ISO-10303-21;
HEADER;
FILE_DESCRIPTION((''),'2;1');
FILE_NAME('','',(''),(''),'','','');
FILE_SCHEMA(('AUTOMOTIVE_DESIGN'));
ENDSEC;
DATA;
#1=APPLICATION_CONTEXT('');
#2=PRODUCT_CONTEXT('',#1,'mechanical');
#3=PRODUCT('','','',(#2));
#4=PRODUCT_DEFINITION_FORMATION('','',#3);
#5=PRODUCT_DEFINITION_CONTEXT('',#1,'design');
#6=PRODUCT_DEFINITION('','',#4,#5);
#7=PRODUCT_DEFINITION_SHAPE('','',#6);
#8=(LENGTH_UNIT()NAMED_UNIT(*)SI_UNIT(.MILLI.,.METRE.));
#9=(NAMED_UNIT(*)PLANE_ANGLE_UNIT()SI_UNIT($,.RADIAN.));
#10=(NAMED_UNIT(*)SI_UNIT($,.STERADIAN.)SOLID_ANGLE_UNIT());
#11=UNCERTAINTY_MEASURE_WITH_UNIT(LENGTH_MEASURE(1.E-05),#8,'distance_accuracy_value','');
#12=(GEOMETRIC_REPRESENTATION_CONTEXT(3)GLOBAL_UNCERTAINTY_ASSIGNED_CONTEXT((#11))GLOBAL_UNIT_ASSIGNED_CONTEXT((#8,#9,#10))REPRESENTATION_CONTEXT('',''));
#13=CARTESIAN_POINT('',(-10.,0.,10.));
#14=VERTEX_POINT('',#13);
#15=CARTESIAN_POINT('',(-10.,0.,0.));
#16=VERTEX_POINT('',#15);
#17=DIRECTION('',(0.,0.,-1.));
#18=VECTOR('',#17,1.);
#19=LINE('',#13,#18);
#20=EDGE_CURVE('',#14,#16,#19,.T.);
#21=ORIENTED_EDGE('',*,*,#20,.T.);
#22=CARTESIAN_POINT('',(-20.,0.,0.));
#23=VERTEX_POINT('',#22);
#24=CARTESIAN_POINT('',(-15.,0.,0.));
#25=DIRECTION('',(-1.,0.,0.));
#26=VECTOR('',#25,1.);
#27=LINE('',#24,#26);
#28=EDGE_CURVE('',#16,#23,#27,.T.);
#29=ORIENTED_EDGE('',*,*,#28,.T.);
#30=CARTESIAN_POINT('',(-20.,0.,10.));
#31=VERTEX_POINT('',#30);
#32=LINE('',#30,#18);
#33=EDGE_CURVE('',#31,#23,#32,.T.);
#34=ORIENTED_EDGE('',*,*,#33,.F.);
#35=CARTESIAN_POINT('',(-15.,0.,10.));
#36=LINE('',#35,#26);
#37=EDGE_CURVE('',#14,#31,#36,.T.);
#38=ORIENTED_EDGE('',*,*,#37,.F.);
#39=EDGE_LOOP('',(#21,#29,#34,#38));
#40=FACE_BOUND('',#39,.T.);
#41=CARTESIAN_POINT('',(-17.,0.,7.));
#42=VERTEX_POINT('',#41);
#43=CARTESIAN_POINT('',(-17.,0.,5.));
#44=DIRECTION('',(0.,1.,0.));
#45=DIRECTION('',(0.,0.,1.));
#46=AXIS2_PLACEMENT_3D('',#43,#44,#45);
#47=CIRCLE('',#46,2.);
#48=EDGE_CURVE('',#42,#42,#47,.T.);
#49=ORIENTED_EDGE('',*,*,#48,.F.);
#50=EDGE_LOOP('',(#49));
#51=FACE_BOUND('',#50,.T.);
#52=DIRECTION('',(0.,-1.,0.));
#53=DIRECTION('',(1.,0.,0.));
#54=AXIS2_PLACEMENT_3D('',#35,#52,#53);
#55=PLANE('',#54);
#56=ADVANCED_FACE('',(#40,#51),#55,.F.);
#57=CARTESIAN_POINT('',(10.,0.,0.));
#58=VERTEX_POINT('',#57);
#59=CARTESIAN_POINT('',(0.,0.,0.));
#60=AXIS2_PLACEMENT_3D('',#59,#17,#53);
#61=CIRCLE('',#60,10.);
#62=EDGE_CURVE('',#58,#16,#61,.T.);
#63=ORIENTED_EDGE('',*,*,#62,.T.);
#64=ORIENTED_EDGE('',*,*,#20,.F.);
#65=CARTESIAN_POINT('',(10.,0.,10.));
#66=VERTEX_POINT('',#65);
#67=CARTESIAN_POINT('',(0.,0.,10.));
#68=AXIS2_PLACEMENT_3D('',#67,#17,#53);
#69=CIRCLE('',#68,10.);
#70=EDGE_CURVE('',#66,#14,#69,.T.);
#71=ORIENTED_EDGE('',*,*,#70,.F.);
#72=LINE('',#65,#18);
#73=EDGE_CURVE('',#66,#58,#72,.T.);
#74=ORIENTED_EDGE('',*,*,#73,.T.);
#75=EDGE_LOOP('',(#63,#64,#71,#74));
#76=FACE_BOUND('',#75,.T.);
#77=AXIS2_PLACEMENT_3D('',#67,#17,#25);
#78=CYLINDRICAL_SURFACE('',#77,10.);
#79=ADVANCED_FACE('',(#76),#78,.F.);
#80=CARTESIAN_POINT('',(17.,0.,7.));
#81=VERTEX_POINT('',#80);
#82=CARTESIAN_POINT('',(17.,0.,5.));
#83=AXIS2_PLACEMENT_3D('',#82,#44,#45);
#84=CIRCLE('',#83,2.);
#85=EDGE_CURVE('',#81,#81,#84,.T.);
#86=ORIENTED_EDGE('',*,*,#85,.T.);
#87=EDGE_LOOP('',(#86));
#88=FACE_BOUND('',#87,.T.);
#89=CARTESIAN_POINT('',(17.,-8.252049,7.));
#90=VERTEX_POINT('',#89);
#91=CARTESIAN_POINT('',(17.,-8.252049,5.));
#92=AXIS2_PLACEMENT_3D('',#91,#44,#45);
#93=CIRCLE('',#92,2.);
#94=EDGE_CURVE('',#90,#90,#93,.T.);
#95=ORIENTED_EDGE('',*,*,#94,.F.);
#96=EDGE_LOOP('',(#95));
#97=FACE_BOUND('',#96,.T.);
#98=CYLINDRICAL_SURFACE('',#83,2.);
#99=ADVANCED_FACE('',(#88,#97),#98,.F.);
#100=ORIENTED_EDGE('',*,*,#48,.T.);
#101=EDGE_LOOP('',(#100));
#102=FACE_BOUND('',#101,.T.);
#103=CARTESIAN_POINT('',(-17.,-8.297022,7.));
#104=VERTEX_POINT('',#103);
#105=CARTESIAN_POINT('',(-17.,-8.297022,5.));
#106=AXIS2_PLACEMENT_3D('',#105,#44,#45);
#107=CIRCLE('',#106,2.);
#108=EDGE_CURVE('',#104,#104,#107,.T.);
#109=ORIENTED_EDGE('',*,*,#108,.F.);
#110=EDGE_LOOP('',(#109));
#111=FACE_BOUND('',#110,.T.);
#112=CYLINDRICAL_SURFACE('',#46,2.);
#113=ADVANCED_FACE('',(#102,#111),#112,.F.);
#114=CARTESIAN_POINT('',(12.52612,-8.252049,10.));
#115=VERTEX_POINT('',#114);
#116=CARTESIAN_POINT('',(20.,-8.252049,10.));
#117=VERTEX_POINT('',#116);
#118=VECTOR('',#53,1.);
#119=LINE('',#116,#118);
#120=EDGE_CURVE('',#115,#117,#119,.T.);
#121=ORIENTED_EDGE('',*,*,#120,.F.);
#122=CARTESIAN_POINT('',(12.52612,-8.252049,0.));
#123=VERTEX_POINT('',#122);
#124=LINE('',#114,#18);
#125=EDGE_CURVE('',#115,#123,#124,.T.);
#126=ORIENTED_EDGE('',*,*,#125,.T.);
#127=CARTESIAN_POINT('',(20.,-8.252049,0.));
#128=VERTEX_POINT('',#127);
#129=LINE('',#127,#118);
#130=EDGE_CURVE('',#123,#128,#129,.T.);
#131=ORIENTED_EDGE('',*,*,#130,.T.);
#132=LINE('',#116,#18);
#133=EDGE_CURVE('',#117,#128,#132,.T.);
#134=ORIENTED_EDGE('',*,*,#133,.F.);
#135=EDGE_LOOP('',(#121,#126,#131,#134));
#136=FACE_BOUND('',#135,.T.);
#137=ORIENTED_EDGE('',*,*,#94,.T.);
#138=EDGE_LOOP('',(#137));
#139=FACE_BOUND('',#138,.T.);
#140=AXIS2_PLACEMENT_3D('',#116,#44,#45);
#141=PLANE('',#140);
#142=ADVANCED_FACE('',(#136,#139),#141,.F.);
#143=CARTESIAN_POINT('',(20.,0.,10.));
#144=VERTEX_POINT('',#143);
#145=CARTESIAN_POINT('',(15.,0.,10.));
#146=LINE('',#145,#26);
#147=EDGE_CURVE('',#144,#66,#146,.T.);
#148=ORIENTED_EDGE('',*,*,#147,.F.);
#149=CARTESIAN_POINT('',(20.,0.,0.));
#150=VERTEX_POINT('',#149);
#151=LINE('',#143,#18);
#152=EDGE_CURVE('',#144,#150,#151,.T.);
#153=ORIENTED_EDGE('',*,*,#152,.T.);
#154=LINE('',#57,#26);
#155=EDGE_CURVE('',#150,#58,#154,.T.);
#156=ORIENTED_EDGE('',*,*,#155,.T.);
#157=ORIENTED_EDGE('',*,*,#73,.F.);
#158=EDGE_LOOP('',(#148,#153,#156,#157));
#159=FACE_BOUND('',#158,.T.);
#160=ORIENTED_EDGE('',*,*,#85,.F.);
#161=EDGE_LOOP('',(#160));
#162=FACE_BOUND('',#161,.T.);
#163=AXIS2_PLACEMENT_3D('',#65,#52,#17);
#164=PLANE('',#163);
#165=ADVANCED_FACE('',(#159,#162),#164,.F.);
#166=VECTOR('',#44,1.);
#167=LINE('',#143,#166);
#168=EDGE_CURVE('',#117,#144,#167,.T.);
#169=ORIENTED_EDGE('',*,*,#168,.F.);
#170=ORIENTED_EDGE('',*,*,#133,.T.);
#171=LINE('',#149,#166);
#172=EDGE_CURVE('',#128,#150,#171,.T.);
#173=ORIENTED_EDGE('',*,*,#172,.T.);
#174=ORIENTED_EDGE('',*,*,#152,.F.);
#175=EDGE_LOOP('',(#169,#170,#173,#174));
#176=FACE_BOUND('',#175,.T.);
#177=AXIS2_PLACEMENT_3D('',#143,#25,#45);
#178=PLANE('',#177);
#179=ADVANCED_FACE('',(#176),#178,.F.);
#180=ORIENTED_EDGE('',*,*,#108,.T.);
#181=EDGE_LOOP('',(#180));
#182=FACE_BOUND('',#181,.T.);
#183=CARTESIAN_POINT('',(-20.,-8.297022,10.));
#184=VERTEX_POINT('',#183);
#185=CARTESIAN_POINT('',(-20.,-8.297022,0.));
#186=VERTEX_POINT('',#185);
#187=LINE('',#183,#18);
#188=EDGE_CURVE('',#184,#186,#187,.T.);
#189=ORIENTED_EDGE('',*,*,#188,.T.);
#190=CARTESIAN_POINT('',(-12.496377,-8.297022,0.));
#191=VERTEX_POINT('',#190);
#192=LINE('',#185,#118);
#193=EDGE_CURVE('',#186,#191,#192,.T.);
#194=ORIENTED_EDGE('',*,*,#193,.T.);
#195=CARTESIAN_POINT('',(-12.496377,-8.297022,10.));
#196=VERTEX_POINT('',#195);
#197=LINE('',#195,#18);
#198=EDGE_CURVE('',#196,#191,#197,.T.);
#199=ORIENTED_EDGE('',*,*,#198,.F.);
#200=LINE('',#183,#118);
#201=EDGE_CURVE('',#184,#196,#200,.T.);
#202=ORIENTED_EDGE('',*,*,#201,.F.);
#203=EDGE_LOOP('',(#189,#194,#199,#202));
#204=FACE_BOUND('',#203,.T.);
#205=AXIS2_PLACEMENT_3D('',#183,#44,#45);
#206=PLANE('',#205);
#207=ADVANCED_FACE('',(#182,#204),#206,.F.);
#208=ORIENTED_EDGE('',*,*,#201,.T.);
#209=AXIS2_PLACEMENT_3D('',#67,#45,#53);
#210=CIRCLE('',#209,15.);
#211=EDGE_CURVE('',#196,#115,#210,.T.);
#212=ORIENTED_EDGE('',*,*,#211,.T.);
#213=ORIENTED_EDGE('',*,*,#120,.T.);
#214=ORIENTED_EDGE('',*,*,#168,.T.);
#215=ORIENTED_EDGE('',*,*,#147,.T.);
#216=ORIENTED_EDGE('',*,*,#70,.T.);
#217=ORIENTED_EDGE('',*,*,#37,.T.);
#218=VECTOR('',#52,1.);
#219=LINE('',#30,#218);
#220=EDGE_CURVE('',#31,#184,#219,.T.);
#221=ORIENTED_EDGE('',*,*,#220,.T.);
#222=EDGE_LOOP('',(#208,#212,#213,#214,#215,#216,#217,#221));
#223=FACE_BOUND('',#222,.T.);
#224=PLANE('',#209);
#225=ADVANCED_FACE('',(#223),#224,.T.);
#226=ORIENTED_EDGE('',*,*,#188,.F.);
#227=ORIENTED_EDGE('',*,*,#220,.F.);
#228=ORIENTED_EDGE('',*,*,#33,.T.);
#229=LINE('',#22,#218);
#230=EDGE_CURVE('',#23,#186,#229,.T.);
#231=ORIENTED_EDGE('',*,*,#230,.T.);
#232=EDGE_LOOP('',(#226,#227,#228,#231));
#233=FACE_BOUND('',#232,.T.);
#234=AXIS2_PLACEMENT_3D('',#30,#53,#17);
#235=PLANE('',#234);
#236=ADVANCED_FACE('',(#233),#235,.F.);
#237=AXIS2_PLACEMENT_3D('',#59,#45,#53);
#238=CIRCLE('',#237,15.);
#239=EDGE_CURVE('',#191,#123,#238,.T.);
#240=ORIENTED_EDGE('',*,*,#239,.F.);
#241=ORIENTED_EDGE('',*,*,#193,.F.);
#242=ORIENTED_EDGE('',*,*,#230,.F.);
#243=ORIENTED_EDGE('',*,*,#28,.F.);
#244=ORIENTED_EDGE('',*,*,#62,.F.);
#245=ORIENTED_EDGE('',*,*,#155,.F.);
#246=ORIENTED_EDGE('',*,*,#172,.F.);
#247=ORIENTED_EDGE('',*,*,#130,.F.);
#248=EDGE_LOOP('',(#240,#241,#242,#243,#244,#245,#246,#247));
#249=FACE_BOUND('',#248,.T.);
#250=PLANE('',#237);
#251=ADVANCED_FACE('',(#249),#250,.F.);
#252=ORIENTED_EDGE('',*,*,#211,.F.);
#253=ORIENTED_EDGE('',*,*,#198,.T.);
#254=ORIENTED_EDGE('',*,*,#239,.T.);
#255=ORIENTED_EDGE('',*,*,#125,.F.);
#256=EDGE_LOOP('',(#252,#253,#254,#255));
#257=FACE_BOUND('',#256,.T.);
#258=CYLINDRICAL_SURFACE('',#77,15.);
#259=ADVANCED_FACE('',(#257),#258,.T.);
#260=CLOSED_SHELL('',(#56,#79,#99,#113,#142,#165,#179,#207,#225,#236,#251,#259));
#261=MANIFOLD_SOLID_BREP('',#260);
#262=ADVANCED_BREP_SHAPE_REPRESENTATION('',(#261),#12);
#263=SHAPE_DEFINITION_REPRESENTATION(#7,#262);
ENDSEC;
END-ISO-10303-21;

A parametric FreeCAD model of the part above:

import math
import FreeCAD as App
import Part
import Sketcher
from FreeCAD import Vector
Q = App.Units.Quantity


def add_polygon(sketch, points):
    """Adds a closed chain of lines whose ends are joined by coincident constraints."""
    first, n = sketch.GeometryCount, len(points)
    for a, b in zip(points, points[1:] + points[:1]):
        sketch.addGeometry(Part.LineSegment(App.Vector(*a, 0), App.Vector(*b, 0)), False)
    for i in range(n):
        sketch.addConstraint(Sketcher.Constraint("Coincident", first + i, 2, first + (i + 1) % n, 1))

doc = App.newDocument("Part")
body = doc.addObject("PartDesign::Body", "Body")

# Sketch on XY plane
sketch1 = body.newObject("Sketcher::SketchObject", "Sketch")
sketch1.AttachmentSupport = (doc.getObject("XY_Plane"), [""])
sketch1.MapMode = "FlatFace"
sketch1.addGeometry(Part.ArcOfCircle(Part.Circle(Vector(0, 0, 0), Vector(0, 0, 1), 10), math.radians(180), math.radians(360)), False)
sketch1.addGeometry(Part.LineSegment(Vector(-10, 0, 0), Vector(-20, 0, 0)), False)
sketch1.addGeometry(Part.LineSegment(Vector(-20, 0, 0), Vector(-20, -8, 0)), False)
sketch1.addGeometry(Part.LineSegment(Vector(-20, -8, 0), Vector(-12, -8, 0)), False)
sketch1.addGeometry(Part.ArcOfCircle(Part.Circle(Vector(0, 0, 0), Vector(0, 0, 1), 15), math.radians(-146), math.radians(-125)), False)
sketch1.addGeometry(Part.ArcOfCircle(Part.Circle(Vector(0, 0, 0), Vector(0, 0, 1), 15), math.radians(-125), math.radians(-55)), False)
sketch1.addGeometry(Part.ArcOfCircle(Part.Circle(Vector(0, 0, 0), Vector(0, 0, 1), 15), math.radians(-55), math.radians(-33)), False)
sketch1.addGeometry(Part.LineSegment(Vector(13, -8, 0), Vector(20, -8, 0)), False)
sketch1.addGeometry(Part.LineSegment(Vector(20, -8, 0), Vector(20, 0, 0)), False)
sketch1.addGeometry(Part.LineSegment(Vector(20, 0, 0), Vector(10, 0, 0)), False)
sketch1.addConstraint(Sketcher.Constraint("Coincident", 0, 1, 1, 1))
sketch1.addConstraint(Sketcher.Constraint("Coincident", 1, 2, 2, 1))
sketch1.addConstraint(Sketcher.Constraint("Coincident", 2, 2, 3, 1))
sketch1.addConstraint(Sketcher.Constraint("Coincident", 3, 2, 4, 1))
sketch1.addConstraint(Sketcher.Constraint("Tangent", 4, 2, 5, 1))
sketch1.addConstraint(Sketcher.Constraint("Tangent", 5, 2, 6, 1))
sketch1.addConstraint(Sketcher.Constraint("Coincident", 6, 2, 7, 1))
sketch1.addConstraint(Sketcher.Constraint("Coincident", 7, 2, 8, 1))
sketch1.addConstraint(Sketcher.Constraint("Coincident", 8, 2, 9, 1))
sketch1.addConstraint(Sketcher.Constraint("Coincident", 9, 2, 0, 2))
sketch1.addConstraint(Sketcher.Constraint("Horizontal", 1))
sketch1.addConstraint(Sketcher.Constraint("Vertical", 2))
sketch1.addConstraint(Sketcher.Constraint("Horizontal", 3))
sketch1.addConstraint(Sketcher.Constraint("Horizontal", 7))
sketch1.addConstraint(Sketcher.Constraint("Vertical", 8))
sketch1.addConstraint(Sketcher.Constraint("Horizontal", 9))
sketch1.addConstraint(Sketcher.Constraint("Coincident", 0, 3, -1, 1))
sketch1.addConstraint(Sketcher.Constraint("Coincident", 4, 3, -1, 1))
sketch1.addConstraint(Sketcher.Constraint("Coincident", 6, 3, -1, 1))
sketch1.addConstraint(Sketcher.Constraint("Symmetric", 1, 2, 8, 2, -1, 1))
sketch1.addConstraint(Sketcher.Constraint("PointOnObject", 0, 1, -1))
sketch1.addConstraint(Sketcher.Constraint("Horizontal", 4, 2, 5, 2))
sketch1.addConstraint(Sketcher.Constraint("Radius", 0, Q("10 mm")))
sketch1.addConstraint(Sketcher.Constraint("Radius", 4, Q("15 mm")))
sketch1.addConstraint(Sketcher.Constraint("DistanceX", 1, 2, 1, 1, Q("10 mm")))
sketch1.addConstraint(Sketcher.Constraint("DistanceX", 7, 1, 7, 2, Q("7.47388 mm")))
sketch1.addConstraint(Sketcher.Constraint("DistanceY", 2, 2, 2, 1, Q("8.297022 mm")))
sketch1.addConstraint(Sketcher.Constraint("DistanceY", 4, 2, 3, 2, Q("4.0551 mm")))
pad1 = body.newObject("PartDesign::Pad", "Pad")
pad1.Profile = sketch1
pad1.Length = 10

# Sketch on YZ plane
sketch2 = body.newObject("Sketcher::SketchObject", "Sketch001")
sketch2.AttachmentSupport = (doc.getObject("YZ_Plane"), [""])
sketch2.MapMode = "FlatFace"
sketch2.AttachmentOffset = App.Placement(Vector(0, 0, 17), App.Rotation())
add_polygon(sketch2, [(-11.2, 5), (0, 5), (0, 7), (-10, 7)])  # lines 0-3
sketch2.addGeometry(Part.LineSegment(Vector(0, 5, 0), Vector(-11.2, 5, 0)), True)  # axis
sketch2.addConstraint(Sketcher.Constraint("Horizontal", 0))
sketch2.addConstraint(Sketcher.Constraint("Vertical", 1))
sketch2.addConstraint(Sketcher.Constraint("Horizontal", 2))
sketch2.addConstraint(Sketcher.Constraint("Horizontal", 4))
sketch2.addConstraint(Sketcher.Constraint("Coincident", 4, 1, 0, 2))
sketch2.addConstraint(Sketcher.Constraint("PointOnObject", 0, 2, -2))
sketch2.addConstraint(Sketcher.Constraint("Equal", 0, 4))
sketch2.addConstraint(Sketcher.Constraint("DistanceX", 2, 2, 2, 1, Q("10 mm")))
sketch2.addConstraint(Sketcher.Constraint("DistanceY", 1, 1, 1, 2, Q("2 mm")))
sketch2.addConstraint(Sketcher.Constraint("Angle", 3, Q("-121 deg")))
sketch2.addConstraint(Sketcher.Constraint("DistanceY", -1, 1, 0, 2, Q("5 mm")))
groove = body.newObject("PartDesign::Groove", "Groove")
groove.Profile = sketch2
groove.ReferenceAxis = (sketch2, ["Axis0"])
groove.Angle = 360
doc.recompute()

mirrored = body.newObject("PartDesign::Mirrored", "Mirrored")
mirrored.Originals = [groove]
mirrored.MirrorPlane = (doc.getObject("YZ_Plane"), [""])
body.Tip = mirrored

doc.recompute()
